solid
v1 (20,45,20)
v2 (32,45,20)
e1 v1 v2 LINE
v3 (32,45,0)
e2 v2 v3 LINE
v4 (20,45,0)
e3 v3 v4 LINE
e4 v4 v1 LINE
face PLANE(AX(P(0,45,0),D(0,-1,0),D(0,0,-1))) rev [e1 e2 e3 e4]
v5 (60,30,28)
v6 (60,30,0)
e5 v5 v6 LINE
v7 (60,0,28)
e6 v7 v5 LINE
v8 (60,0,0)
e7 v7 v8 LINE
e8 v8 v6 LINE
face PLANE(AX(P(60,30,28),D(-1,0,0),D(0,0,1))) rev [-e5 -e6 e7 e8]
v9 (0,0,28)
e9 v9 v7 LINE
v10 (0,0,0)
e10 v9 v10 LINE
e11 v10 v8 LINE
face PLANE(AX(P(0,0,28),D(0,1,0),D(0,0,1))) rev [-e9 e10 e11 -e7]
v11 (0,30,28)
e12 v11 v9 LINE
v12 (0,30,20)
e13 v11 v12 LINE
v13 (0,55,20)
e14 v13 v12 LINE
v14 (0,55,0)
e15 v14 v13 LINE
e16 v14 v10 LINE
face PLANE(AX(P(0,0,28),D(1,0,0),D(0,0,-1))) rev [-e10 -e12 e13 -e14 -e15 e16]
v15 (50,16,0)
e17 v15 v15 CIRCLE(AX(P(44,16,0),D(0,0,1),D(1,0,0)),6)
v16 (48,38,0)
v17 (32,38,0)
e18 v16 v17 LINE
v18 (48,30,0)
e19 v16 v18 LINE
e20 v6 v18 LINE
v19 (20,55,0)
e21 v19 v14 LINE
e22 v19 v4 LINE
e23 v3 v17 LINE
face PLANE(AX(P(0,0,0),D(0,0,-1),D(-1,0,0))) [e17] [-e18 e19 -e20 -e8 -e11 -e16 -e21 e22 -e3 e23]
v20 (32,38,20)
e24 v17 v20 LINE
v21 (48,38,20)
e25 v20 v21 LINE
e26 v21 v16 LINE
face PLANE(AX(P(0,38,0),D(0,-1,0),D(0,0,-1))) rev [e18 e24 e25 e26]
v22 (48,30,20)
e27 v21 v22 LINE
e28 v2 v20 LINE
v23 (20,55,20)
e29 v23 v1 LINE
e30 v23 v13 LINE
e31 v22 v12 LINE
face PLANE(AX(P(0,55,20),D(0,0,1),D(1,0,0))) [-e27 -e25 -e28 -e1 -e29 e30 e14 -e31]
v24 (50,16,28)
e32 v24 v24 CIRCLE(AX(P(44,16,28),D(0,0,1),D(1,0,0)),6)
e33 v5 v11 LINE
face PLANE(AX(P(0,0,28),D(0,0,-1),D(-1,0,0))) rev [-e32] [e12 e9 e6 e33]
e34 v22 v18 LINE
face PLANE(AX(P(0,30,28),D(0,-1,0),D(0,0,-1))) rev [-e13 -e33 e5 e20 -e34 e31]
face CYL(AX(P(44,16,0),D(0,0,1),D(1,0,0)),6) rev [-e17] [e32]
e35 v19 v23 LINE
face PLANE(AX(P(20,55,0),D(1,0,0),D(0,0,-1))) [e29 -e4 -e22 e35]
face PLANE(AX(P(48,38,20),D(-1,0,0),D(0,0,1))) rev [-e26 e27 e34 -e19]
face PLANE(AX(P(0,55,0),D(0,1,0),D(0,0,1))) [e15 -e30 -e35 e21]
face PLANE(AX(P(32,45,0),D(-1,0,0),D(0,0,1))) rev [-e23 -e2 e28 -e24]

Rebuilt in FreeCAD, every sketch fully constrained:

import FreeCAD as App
import Part
import Sketcher

V = App.Vector
Q = App.Units.Quantity


def add_polygon(sketch, points):
    """Adds a closed chain of lines whose ends are joined by coincident constraints."""
    first, n = sketch.GeometryCount, len(points)
    for a, b in zip(points, points[1:] + points[:1]):
        sketch.addGeometry(Part.LineSegment(App.Vector(*a, 0), App.Vector(*b, 0)), False)
    for i in range(n):
        sketch.addConstraint(Sketcher.Constraint("Coincident", first + i, 2, first + (i + 1) % n, 1))

doc = App.newDocument("Part")
params = doc.addObject("Spreadsheet::Sheet", "Params")
for row, (alias, value) in enumerate([
    ("sketch1_width", "60 mm"),
    ("sketch1_height", "30 mm"),
    ("pad1_length", "28 mm"),
    ("sketch2_diameter", "12 mm"),
    ("pocket1_length", "28 mm"),
    ("sketch3_width", "20 mm"),
    ("pad2_length", "25 mm"),
    ("sketch4_width", "12 mm"),
    ("sketch4_height", "20 mm"),
    ("pad3_length", "15 mm"),
    ("sketch5_width", "16 mm"),
    ("sketch5_height", "20 mm"),
    ("pad4_length", "8 mm"),
], start=1):
    params.set(f"A{row}", alias)
    params.set(f"B{row}", "=" + value)
    params.setAlias(f"B{row}", alias)

body = doc.addObject("PartDesign::Body", "Body")

sketch1 = doc.addObject("Sketcher::SketchObject", "Sketch")
body.addObject(sketch1)
sketch1.AttachmentSupport = (doc.XY_Plane, [""])
sketch1.MapMode = "FlatFace"
add_polygon(sketch1, [(0, 30), (0, 0), (60, 0), (60, 30)])
sketch1.addConstraint(Sketcher.Constraint("Vertical", 0))
sketch1.addConstraint(Sketcher.Constraint("Horizontal", 1))
sketch1.addConstraint(Sketcher.Constraint("Vertical", 2))
sketch1.addConstraint(Sketcher.Constraint("Horizontal", 3))
sketch1.addConstraint(Sketcher.Constraint("Coincident", 0, 2, -1, 1))
sketch1.addConstraint(Sketcher.Constraint("DistanceX", 1, 1, 1, 2, Q("60 mm")))
sketch1.addConstraint(Sketcher.Constraint("DistanceY", 0, 2, 0, 1, Q("30 mm")))
sketch1.setExpression("Constraints[9]", "Params.sketch1_width")
sketch1.setExpression("Constraints[10]", "Params.sketch1_height")
pad1 = doc.addObject("PartDesign::Pad", "Pad")
body.addObject(pad1)
pad1.Profile = sketch1
pad1.setExpression("Length", "Params.pad1_length")

sketch2 = doc.addObject("Sketcher::SketchObject", "Sketch001")
body.addObject(sketch2)
sketch2.AttachmentSupport = (doc.XY_Plane, [""])
sketch2.MapMode = "FlatFace"
sketch2.AttachmentOffset = App.Placement(V(0, 0, 28), App.Rotation())
sketch2.addGeometry(Part.Circle(V(44, 16, 0), V(0, 0, 1), 6), False)
sketch2.addConstraint(Sketcher.Constraint("Diameter", 0, Q("12 mm")))
sketch2.addConstraint(Sketcher.Constraint("DistanceX", -1, 1, 0, 3, Q("44 mm")))
sketch2.addConstraint(Sketcher.Constraint("DistanceY", -1, 1, 0, 3, Q("16 mm")))
sketch2.setExpression("Constraints[0]", "Params.sketch2_diameter")
pocket1 = doc.addObject("PartDesign::Pocket", "Pocket")
body.addObject(pocket1)
pocket1.Profile = sketch2
pocket1.setExpression("Length", "Params.pocket1_length")

sketch3 = doc.addObject("Sketcher::SketchObject", "Sketch002")
body.addObject(sketch3)
sketch3.AttachmentSupport = (doc.XZ_Plane, [""])
sketch3.MapMode = "FlatFace"
sketch3.AttachmentOffset = App.Placement(V(0, 0, -30), App.Rotation())
add_polygon(sketch3, [(0, 0), (0, 20), (20, 20), (20, 0)])
sketch3.addConstraint(Sketcher.Constraint("Vertical", 0))
sketch3.addConstraint(Sketcher.Constraint("Horizontal", 1))
sketch3.addConstraint(Sketcher.Constraint("Vertical", 2))
sketch3.addConstraint(Sketcher.Constraint("Horizontal", 3))
sketch3.addConstraint(Sketcher.Constraint("Coincident", 3, 2, -1, 1))
sketch3.addConstraint(Sketcher.Constraint("Equal", 3, 0))
sketch3.addConstraint(Sketcher.Constraint("DistanceX", 1, 1, 1, 2, Q("20 mm")))
sketch3.setExpression("Constraints[10]", "Params.sketch3_width")
pad2 = doc.addObject("PartDesign::Pad", "Pad001")
body.addObject(pad2)
pad2.Profile = sketch3
pad2.setExpression("Length", "Params.pad2_length")
pad2.Reversed = True

sketch4 = doc.addObject("Sketcher::SketchObject", "Sketch003")
body.addObject(sketch4)
sketch4.AttachmentSupport = (doc.XZ_Plane, [""])
sketch4.MapMode = "FlatFace"
sketch4.AttachmentOffset = App.Placement(V(0, 0, -30), App.Rotation())
add_polygon(sketch4, [(20, 0), (20, 20), (32, 20), (32, 0)])
sketch4.addConstraint(Sketcher.Constraint("Vertical", 0))
sketch4.addConstraint(Sketcher.Constraint("Horizontal", 1))
sketch4.addConstraint(Sketcher.Constraint("Vertical", 2))
sketch4.addConstraint(Sketcher.Constraint("Horizontal", 3))
sketch4.addConstraint(Sketcher.Constraint("PointOnObject", 2, 2, -1))
sketch4.addConstraint(Sketcher.Constraint("DistanceX", 1, 1, 1, 2, Q("12 mm")))
sketch4.addConstraint(Sketcher.Constraint("DistanceY", 0, 1, 0, 2, Q("20 mm")))
sketch4.addConstraint(Sketcher.Constraint("DistanceX", -1, 1, 0, 2, Q("20 mm")))
sketch4.setExpression("Constraints[9]", "Params.sketch4_width")
sketch4.setExpression("Constraints[10]", "Params.sketch4_height")
pad3 = doc.addObject("PartDesign::Pad", "Pad002")
body.addObject(pad3)
pad3.Profile = sketch4
pad3.setExpression("Length", "Params.pad3_length")
pad3.Reversed = True

sketch5 = doc.addObject("Sketcher::SketchObject", "Sketch004")
body.addObject(sketch5)
sketch5.AttachmentSupport = (doc.XZ_Plane, [""])
sketch5.MapMode = "FlatFace"
sketch5.AttachmentOffset = App.Placement(V(0, 0, -30), App.Rotation())
add_polygon(sketch5, [(32, 0), (32, 20), (48, 20), (48, 0)])
sketch5.addConstraint(Sketcher.Constraint("Vertical", 0))
sketch5.addConstraint(Sketcher.Constraint("Horizontal", 1))
sketch5.addConstraint(Sketcher.Constraint("Vertical", 2))
sketch5.addConstraint(Sketcher.Constraint("Horizontal", 3))
sketch5.addConstraint(Sketcher.Constraint("PointOnObject", 2, 2, -1))
sketch5.addConstraint(Sketcher.Constraint("DistanceX", 1, 1, 1, 2, Q("16 mm")))
sketch5.addConstraint(Sketcher.Constraint("DistanceY", 0, 1, 0, 2, Q("20 mm")))
sketch5.addConstraint(Sketcher.Constraint("DistanceX", -1, 1, 0, 2, Q("32 mm")))
sketch5.setExpression("Constraints[9]", "Params.sketch5_width")
sketch5.setExpression("Constraints[10]", "Params.sketch5_height")
pad4 = doc.addObject("PartDesign::Pad", "Pad003")
body.addObject(pad4)
pad4.Profile = sketch5
pad4.setExpression("Length", "Params.pad4_length")
pad4.Reversed = True

doc.recompute()
